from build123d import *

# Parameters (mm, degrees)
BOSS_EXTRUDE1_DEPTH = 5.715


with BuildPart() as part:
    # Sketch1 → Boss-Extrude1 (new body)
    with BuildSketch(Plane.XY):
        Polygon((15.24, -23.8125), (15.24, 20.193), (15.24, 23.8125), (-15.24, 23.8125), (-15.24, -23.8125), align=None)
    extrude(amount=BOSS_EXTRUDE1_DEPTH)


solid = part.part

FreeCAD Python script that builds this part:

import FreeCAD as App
import Part
import Sketcher
from FreeCAD import Vector
Q = App.Units.Quantity


def add_polygon(sketch, points):
    """Adds a closed chain of lines whose ends are joined by coincident constraints."""
    first, n = sketch.GeometryCount, len(points)
    for a, b in zip(points, points[1:] + points[:1]):
        sketch.addGeometry(Part.LineSegment(App.Vector(*a, 0), App.Vector(*b, 0)), False)
    for i in range(n):
        sketch.addConstraint(Sketcher.Constraint("Coincident", first + i, 2, first + (i + 1) % n, 1))

doc = App.newDocument("Part")
body = doc.addObject("PartDesign::Body", "Body")

# Sketch on XY plane
sketch1 = body.newObject("Sketcher::SketchObject", "Sketch")
sketch1.AttachmentSupport = (doc.getObject("XY_Plane"), [""])
sketch1.MapMode = "FlatFace"
add_polygon(sketch1, [(15, -24), (15, 24), (-15, 24), (-15, -24)])  # lines 0-3
sketch1.addConstraint(Sketcher.Constraint("Vertical", 0))
sketch1.addConstraint(Sketcher.Constraint("Horizontal", 1))
sketch1.addConstraint(Sketcher.Constraint("Vertical", 2))
sketch1.addConstraint(Sketcher.Constraint("Horizontal", 3))
sketch1.addConstraint(Sketcher.Constraint("Symmetric", 0, 2, 2, 2, -1, 1))
sketch1.addConstraint(Sketcher.Constraint("DistanceX", 1, 2, 1, 1, Q("1.2 in")))
sketch1.addConstraint(Sketcher.Constraint("DistanceY", 0, 1, 0, 2, Q("1.875 in")))
pad1 = body.newObject("PartDesign::Pad", "Pad")
pad1.Profile = sketch1
pad1.Length = Q("0.225 in")

doc.recompute()
